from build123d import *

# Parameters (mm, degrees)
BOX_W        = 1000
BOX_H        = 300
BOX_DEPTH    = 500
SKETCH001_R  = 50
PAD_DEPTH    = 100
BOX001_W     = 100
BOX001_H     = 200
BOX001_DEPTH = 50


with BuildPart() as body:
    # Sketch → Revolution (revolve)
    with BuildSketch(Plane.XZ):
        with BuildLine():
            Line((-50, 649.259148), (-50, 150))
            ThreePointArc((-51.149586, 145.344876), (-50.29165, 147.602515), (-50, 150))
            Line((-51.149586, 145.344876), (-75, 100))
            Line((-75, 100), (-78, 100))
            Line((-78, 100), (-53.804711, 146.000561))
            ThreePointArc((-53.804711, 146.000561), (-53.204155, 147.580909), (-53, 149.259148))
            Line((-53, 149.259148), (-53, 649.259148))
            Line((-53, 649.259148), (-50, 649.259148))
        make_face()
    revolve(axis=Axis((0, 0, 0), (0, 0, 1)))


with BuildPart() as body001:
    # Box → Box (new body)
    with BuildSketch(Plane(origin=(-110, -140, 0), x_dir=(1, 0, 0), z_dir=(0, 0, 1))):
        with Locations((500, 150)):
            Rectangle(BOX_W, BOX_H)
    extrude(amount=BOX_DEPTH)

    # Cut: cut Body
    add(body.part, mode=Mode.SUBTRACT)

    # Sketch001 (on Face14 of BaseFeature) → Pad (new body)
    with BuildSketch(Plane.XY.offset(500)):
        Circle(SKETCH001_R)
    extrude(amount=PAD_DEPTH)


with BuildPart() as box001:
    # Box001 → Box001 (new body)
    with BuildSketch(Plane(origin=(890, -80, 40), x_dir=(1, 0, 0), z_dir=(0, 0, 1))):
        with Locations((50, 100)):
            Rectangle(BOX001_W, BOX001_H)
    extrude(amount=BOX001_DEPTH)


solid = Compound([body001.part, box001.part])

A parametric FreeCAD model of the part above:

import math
import FreeCAD as App
import Part
import Sketcher
from FreeCAD import Vector
Q = App.Units.Quantity


def add_polygon(sketch, points):
    """Adds a closed chain of lines whose ends are joined by coincident constraints."""
    first, n = sketch.GeometryCount, len(points)
    for a, b in zip(points, points[1:] + points[:1]):
        sketch.addGeometry(Part.LineSegment(App.Vector(*a, 0), App.Vector(*b, 0)), False)
    for i in range(n):
        sketch.addConstraint(Sketcher.Constraint("Coincident", first + i, 2, first + (i + 1) % n, 1))

doc = App.newDocument("Part")
body = doc.addObject("PartDesign::Body", "Body")

sketch1 = doc.addObject("Sketcher::SketchObject", "Sketch")
body.addObject(sketch1)
sketch1.AttachmentSupport = (doc.XZ_Plane, [""])
sketch1.MapMode = "FlatFace"
sketch1.addGeometry([
    Part.LineSegment(Vector(-50, 150, 0), Vector(-50, 649.3, 0)),
    Part.LineSegment(Vector(-50, 649.3, 0), Vector(-53, 649.3, 0)),
    Part.LineSegment(Vector(-53, 649.3, 0), Vector(-53, 149.3, 0)),
    Part.ArcOfCircle(Part.Circle(Vector(-60, 149.3, 0), Vector(0, 0, 1), 7), math.radians(-28), math.radians(0)),
    Part.LineSegment(Vector(-53.8, 146, 0), Vector(-78, 100, 0)),
    Part.LineSegment(Vector(-78, 100, 0), Vector(-75, 100, 0)),
    Part.LineSegment(Vector(-75, 100, 0), Vector(-51.1, 145.3, 0)),
    Part.ArcOfCircle(Part.Circle(Vector(-60, 150, 0), Vector(0, 0, 1), 10), math.radians(-28), math.radians(0)),
], False)
sketch1.addConstraint([
    Sketcher.Constraint("Coincident", 0, 2, 1, 1),
    Sketcher.Constraint("Coincident", 1, 2, 2, 1),
    Sketcher.Constraint("Tangent", 2, 2, 3, 2),
    Sketcher.Constraint("Tangent", 3, 1, 4, 1),
    Sketcher.Constraint("Coincident", 4, 2, 5, 1),
    Sketcher.Constraint("Coincident", 5, 2, 6, 1),
    Sketcher.Constraint("Tangent", 6, 2, 7, 1),
    Sketcher.Constraint("Tangent", 7, 2, 0, 1),
    Sketcher.Constraint("Vertical", 0),
    Sketcher.Constraint("Horizontal", 1),
    Sketcher.Constraint("Vertical", 2),
    Sketcher.Constraint("Horizontal", 5),
    Sketcher.Constraint("Parallel", 4, 6),
    Sketcher.Constraint("Equal", 1, 5),
    Sketcher.Constraint("DistanceX", 1, 2, 1, 1, Q("3 mm")),
    Sketcher.Constraint("DistanceY", 2, 2, 2, 1, Q("500 mm")),
    Sketcher.Constraint("DistanceX", 0, 2, -1, 1, Q("50 mm")),
    Sketcher.Constraint("DistanceX", 4, 2, -1, 1, Q("78 mm")),
    Sketcher.Constraint("DistanceY", -1, 1, 4, 2, Q("100 mm")),
    Sketcher.Constraint("DistanceY", -1, 1, 7, 2, Q("150 mm")),
    Sketcher.Constraint("Radius", 3, Q("7.000005 mm")),
    Sketcher.Constraint("Radius", 7, Q("10.000016 mm")),
])
revolution = doc.addObject("PartDesign::Revolution", "Revolution")
body.addObject(revolution)
revolution.Profile = sketch1
revolution.ReferenceAxis = (sketch1, ["V_Axis"])
revolution.Angle = 360
body2 = doc.addObject("PartDesign::Body", "Body001")

sketch2 = doc.addObject("Sketcher::SketchObject", "Sketch001")
body2.addObject(sketch2)
sketch2.AttachmentSupport = (doc.getObject("XY_Plane001"), [""])
sketch2.MapMode = "FlatFace"
add_polygon(sketch2, [(-110, 160), (-110, -140), (890, -140), (890, 160)])
sketch2.addConstraint([
    Sketcher.Constraint("Vertical", 0),
    Sketcher.Constraint("Horizontal", 1),
    Sketcher.Constraint("Vertical", 2),
    Sketcher.Constraint("Horizontal", 3),
    Sketcher.Constraint("DistanceX", 1, 1, 1, 2, Q("1000 mm")),
    Sketcher.Constraint("DistanceY", 0, 2, 0, 1, Q("300 mm")),
    Sketcher.Constraint("DistanceX", 0, 2, -1, 1, Q("110 mm")),
    Sketcher.Constraint("DistanceY", 0, 2, -1, 1, Q("140 mm")),
])
pad1 = doc.addObject("PartDesign::Pad", "Pad")
body2.addObject(pad1)
pad1.Profile = sketch2
pad1.Length = 500
doc.recompute()

boolean = doc.addObject("PartDesign::Boolean", "Boolean")
body2.addObject(boolean)
boolean.Type = "Cut"
boolean.addObjects([body])

sketch3 = doc.addObject("Sketcher::SketchObject", "Sketch002")
body2.addObject(sketch3)
sketch3.AttachmentSupport = (doc.getObject("XY_Plane001"), [""])
sketch3.MapMode = "FlatFace"
sketch3.AttachmentOffset = App.Placement(Vector(0, 0, 500), App.Rotation())
sketch3.addGeometry(Part.Circle(Vector(0, 0, 0), Vector(0, 0, 1), 50), False)
sketch3.addConstraint([
    Sketcher.Constraint("Coincident", 0, 3, -1, 1),
    Sketcher.Constraint("Diameter", 0, Q("100 mm")),
])
pad2 = doc.addObject("PartDesign::Pad", "Pad001")
body2.addObject(pad2)
pad2.Profile = sketch3
pad2.Length = 100
body3 = doc.addObject("PartDesign::Body", "Body002")

sketch4 = doc.addObject("Sketcher::SketchObject", "Sketch003")
body3.addObject(sketch4)
sketch4.AttachmentSupport = (doc.getObject("XY_Plane002"), [""])
sketch4.MapMode = "FlatFace"
sketch4.AttachmentOffset = App.Placement(Vector(0, 0, 40), App.Rotation())
add_polygon(sketch4, [(890, 120), (890, -80), (990, -80), (990, 120)])
sketch4.addConstraint([
    Sketcher.Constraint("Vertical", 0),
    Sketcher.Constraint("Horizontal", 1),
    Sketcher.Constraint("Vertical", 2),
    Sketcher.Constraint("Horizontal", 3),
    Sketcher.Constraint("DistanceX", 1, 1, 1, 2, Q("100 mm")),
    Sketcher.Constraint("DistanceY", 0, 2, 0, 1, Q("200 mm")),
    Sketcher.Constraint("DistanceX", -1, 1, 0, 2, Q("890 mm")),
    Sketcher.Constraint("DistanceY", 0, 2, -1, 1, Q("80 mm")),
])
pad3 = doc.addObject("PartDesign::Pad", "Pad002")
body3.addObject(pad3)
pad3.Profile = sketch4
pad3.Length = 50

doc.recompute()
